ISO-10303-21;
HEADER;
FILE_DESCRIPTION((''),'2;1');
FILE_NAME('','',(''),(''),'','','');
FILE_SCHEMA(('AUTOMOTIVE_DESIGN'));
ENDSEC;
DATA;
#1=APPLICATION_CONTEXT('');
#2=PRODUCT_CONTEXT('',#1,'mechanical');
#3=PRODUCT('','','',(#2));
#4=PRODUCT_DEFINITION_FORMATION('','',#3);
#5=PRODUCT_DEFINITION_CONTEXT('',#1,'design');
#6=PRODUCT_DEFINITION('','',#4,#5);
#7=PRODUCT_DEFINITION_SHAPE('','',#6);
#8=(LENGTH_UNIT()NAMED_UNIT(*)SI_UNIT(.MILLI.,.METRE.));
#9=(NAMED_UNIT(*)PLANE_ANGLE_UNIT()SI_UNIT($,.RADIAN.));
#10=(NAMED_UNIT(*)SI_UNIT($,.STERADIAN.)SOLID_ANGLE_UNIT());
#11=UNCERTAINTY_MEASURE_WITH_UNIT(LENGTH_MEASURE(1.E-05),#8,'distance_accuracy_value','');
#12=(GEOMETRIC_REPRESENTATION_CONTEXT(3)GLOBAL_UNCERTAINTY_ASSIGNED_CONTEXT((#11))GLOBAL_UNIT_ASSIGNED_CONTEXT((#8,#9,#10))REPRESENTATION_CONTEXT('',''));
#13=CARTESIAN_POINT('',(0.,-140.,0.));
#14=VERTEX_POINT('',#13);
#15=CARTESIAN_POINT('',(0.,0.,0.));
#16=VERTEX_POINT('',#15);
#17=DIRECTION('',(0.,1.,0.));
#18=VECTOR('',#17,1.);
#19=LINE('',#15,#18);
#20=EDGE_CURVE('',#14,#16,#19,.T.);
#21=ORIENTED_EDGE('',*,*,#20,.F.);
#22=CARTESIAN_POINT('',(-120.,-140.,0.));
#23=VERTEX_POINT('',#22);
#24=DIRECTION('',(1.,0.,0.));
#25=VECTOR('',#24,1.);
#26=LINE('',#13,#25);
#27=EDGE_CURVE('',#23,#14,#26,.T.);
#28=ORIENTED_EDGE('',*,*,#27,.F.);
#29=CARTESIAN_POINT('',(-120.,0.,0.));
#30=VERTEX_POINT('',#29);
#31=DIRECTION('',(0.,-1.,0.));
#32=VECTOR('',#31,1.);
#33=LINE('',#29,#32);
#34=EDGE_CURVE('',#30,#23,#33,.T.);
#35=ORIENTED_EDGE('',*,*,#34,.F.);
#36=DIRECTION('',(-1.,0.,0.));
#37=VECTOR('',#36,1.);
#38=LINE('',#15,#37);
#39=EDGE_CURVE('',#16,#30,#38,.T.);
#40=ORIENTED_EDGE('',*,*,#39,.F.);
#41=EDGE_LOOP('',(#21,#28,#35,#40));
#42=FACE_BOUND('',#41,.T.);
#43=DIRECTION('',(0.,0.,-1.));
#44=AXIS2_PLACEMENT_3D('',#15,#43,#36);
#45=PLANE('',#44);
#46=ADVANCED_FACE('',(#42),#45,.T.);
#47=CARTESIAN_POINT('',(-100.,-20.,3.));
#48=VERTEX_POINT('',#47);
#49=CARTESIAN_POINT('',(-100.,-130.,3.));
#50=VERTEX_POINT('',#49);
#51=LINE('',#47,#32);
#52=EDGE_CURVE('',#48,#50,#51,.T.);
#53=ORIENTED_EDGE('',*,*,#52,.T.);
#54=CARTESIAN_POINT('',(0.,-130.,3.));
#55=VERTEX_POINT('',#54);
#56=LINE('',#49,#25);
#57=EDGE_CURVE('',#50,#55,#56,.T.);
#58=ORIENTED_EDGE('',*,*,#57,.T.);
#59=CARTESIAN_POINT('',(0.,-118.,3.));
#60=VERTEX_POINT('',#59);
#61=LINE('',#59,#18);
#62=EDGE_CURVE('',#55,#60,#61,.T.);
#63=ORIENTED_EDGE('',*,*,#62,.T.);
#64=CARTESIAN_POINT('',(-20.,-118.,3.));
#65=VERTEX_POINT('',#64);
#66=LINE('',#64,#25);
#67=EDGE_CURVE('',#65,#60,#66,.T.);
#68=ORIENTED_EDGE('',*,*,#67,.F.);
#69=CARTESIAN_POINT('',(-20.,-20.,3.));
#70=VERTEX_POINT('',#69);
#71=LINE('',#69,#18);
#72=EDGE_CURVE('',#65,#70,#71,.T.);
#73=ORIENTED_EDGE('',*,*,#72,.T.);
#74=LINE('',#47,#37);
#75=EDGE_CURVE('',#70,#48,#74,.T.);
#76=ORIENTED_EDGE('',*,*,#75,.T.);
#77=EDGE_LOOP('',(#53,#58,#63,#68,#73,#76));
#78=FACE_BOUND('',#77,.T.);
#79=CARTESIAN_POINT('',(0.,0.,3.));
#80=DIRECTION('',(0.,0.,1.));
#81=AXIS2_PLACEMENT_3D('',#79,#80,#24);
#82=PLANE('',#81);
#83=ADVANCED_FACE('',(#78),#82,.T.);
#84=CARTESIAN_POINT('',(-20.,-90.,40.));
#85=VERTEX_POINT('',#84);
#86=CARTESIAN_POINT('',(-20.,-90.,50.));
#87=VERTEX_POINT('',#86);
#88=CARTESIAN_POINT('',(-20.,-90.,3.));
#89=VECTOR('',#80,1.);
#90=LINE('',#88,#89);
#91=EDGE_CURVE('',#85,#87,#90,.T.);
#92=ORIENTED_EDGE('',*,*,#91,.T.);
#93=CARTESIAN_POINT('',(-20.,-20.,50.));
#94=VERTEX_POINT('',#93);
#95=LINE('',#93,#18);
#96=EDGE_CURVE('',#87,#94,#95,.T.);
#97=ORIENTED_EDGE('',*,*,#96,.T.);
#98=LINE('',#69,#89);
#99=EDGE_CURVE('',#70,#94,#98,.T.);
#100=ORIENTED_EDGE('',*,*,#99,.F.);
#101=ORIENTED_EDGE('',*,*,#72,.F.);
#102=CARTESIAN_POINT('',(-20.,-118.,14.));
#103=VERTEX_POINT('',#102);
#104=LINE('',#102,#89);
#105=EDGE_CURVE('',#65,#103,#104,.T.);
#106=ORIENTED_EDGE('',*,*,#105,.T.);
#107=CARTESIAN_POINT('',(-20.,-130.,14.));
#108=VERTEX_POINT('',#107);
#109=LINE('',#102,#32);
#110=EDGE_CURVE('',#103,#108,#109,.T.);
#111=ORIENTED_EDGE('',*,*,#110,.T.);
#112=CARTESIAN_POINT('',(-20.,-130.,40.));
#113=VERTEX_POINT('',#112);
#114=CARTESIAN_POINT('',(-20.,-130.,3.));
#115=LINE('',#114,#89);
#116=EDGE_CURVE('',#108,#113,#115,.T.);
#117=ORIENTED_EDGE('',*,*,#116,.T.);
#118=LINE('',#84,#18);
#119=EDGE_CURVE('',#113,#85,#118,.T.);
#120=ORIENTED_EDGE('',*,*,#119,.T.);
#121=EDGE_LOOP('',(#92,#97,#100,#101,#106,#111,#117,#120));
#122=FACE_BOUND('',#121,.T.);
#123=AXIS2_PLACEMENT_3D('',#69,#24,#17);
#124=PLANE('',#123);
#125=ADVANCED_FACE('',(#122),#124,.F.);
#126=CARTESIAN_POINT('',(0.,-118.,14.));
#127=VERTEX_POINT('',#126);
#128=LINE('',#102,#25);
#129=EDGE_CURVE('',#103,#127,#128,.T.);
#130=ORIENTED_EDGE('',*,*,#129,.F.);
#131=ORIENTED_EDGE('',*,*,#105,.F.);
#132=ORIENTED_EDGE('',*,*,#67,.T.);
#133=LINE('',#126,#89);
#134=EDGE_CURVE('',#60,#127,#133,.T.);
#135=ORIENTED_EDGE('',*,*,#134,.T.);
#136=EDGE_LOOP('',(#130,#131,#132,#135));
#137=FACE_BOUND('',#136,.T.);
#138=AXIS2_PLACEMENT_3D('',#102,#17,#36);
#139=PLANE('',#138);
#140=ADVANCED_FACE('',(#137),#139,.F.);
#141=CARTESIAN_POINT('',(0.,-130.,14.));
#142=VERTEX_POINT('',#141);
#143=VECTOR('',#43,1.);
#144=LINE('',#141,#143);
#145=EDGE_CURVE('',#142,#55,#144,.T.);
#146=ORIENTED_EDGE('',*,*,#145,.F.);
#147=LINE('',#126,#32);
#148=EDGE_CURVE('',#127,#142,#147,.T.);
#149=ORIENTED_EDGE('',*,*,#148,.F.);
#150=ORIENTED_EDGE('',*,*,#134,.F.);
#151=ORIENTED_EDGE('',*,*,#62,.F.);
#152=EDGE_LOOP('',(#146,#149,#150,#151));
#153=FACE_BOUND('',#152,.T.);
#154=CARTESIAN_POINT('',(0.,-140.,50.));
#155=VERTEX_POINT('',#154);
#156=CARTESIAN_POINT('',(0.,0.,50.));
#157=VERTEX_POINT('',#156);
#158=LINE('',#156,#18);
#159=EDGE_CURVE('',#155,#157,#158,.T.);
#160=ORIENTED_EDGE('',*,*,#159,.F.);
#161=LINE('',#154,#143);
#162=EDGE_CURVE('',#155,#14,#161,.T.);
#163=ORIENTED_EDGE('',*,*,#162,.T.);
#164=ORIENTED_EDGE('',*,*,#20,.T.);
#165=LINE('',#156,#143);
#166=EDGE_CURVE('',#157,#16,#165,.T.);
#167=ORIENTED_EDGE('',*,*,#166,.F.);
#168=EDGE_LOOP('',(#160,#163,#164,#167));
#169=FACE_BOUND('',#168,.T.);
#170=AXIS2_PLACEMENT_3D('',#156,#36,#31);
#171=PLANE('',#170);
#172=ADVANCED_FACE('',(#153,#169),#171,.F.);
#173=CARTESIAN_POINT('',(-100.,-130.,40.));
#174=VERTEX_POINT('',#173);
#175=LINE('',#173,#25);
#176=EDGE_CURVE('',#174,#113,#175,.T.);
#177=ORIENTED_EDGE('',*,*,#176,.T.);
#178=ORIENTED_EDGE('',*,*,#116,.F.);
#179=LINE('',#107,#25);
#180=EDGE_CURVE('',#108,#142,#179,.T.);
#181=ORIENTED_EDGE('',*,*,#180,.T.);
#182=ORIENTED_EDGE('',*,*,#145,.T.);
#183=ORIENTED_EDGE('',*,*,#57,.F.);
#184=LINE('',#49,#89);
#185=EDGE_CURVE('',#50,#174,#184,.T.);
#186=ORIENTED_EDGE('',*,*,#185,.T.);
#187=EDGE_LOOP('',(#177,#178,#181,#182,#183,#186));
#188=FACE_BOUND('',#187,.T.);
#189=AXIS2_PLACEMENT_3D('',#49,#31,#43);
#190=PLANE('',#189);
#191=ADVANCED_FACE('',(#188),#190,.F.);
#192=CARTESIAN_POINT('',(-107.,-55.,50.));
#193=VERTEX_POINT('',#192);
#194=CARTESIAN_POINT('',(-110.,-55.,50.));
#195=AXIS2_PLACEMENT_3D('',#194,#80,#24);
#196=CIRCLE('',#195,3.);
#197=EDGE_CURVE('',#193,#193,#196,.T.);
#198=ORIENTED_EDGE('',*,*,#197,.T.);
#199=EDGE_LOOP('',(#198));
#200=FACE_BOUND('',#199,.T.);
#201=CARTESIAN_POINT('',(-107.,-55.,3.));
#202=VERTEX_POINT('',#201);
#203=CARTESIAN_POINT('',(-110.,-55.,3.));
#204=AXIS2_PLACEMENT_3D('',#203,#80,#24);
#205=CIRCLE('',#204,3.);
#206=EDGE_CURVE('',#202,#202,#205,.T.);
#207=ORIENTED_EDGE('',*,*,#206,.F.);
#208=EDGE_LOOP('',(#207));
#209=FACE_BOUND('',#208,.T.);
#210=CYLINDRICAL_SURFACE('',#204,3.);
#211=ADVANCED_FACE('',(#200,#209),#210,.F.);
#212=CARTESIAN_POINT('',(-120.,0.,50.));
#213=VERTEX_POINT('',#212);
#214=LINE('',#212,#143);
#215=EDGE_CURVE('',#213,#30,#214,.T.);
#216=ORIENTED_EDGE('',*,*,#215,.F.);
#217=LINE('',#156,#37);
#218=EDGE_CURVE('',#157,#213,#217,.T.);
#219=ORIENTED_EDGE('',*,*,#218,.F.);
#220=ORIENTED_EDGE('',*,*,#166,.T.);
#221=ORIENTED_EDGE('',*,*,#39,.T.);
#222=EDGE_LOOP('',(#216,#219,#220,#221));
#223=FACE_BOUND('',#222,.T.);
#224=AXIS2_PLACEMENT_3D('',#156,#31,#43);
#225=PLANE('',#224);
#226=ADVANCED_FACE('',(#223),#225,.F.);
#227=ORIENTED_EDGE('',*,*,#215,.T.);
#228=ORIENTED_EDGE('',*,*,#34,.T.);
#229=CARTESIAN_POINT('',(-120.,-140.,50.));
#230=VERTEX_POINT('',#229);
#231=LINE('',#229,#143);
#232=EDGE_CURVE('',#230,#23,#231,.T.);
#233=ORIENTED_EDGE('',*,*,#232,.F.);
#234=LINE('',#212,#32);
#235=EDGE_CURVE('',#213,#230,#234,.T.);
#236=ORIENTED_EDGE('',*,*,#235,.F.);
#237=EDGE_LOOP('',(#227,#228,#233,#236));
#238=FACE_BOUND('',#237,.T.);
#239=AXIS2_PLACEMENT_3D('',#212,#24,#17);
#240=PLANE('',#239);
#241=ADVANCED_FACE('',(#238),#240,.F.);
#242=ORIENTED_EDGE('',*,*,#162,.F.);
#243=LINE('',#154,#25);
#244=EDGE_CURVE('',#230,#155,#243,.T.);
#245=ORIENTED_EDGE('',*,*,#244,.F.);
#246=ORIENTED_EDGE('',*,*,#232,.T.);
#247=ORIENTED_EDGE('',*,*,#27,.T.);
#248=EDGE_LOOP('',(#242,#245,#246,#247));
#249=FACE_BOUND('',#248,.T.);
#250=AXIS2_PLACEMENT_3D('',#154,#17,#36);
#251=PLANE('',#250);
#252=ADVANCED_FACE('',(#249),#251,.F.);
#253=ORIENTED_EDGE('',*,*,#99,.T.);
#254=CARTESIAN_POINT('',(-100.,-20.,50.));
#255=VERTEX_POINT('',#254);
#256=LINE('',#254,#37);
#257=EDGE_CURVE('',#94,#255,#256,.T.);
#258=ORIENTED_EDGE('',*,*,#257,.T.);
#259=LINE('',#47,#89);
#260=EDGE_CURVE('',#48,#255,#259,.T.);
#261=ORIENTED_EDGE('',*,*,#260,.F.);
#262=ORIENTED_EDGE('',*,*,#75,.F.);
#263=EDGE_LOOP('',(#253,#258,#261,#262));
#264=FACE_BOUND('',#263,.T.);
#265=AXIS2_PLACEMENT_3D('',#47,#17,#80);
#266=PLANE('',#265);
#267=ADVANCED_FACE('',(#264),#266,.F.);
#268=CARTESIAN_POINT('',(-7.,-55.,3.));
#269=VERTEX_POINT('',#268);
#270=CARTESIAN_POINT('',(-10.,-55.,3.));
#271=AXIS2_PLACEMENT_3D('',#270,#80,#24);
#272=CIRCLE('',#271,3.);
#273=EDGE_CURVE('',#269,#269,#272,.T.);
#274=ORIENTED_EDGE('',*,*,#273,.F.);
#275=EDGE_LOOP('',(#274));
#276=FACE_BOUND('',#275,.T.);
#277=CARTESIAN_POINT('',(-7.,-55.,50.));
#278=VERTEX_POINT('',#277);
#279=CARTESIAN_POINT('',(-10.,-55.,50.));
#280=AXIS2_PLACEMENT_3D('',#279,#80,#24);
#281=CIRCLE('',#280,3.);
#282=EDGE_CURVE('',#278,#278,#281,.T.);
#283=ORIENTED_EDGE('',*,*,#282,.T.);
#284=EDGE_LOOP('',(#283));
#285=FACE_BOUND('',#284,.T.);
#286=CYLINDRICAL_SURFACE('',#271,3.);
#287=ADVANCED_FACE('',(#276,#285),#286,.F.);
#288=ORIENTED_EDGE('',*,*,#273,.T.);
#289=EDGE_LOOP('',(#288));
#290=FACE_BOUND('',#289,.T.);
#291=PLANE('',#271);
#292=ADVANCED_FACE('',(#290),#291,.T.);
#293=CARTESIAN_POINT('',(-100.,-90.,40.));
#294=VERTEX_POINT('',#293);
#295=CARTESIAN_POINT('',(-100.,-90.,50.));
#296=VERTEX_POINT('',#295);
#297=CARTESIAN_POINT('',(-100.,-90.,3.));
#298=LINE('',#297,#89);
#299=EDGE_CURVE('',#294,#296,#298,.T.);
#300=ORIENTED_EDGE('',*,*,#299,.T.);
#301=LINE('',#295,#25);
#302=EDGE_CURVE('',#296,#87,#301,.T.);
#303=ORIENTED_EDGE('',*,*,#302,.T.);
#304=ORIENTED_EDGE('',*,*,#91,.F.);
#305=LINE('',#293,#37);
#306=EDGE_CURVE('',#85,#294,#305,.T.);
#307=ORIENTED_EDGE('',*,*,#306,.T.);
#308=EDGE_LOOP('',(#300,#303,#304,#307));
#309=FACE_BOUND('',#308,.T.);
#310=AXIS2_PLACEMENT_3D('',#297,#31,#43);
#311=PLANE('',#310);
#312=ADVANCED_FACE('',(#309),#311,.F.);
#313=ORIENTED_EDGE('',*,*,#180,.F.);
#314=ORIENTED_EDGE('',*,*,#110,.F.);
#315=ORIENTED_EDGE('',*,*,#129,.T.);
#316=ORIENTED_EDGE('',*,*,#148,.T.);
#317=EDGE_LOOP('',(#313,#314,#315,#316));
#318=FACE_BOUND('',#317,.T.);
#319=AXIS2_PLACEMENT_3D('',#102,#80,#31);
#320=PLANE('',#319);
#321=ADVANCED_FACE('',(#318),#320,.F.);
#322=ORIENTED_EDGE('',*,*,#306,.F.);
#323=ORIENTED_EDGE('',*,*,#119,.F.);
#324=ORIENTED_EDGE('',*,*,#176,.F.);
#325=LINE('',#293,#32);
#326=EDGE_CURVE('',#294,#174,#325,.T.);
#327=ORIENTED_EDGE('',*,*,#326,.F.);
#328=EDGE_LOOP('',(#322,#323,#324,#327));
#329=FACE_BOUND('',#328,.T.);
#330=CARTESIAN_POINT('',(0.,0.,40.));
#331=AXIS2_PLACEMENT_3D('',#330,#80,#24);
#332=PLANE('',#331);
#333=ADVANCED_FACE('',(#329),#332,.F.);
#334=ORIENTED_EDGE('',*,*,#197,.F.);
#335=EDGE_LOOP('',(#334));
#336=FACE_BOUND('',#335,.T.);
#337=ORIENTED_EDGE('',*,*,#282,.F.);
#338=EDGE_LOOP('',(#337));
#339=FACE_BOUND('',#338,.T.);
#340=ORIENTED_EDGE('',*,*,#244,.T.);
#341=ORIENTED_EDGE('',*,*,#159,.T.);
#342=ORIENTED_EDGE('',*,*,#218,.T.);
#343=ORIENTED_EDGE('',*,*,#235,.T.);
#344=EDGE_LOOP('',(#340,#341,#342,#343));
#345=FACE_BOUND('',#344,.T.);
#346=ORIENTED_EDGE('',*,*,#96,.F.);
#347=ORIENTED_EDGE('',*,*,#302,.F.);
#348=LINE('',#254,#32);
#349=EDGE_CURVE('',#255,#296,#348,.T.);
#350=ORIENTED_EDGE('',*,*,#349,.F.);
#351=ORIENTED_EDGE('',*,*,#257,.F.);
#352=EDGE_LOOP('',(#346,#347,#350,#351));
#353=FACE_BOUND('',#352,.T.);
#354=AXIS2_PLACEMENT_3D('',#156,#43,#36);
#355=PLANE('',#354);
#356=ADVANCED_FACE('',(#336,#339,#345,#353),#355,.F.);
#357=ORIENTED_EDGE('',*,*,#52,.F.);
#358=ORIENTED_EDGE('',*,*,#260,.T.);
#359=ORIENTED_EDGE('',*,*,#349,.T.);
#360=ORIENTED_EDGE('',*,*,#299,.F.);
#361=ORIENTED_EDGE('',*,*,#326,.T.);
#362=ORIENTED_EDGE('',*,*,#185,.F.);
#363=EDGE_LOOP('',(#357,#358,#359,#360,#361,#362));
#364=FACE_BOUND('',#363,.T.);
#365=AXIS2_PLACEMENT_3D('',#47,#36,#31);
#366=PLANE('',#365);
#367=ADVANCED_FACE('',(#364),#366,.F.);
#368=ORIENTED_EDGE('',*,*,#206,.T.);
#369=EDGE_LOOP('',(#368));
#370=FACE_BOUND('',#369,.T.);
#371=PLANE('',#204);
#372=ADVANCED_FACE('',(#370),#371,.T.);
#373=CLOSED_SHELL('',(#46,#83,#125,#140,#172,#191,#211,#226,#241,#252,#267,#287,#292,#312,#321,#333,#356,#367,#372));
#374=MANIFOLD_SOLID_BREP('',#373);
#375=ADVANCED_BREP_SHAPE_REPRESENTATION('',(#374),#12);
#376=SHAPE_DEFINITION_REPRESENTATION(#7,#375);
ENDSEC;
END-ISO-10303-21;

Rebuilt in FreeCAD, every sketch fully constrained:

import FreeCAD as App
import Part
import Sketcher

V = App.Vector


def add_polygon(sketch, points):
    """Adds a closed chain of lines whose ends are joined by coincident constraints."""
    first, n = sketch.GeometryCount, len(points)
    for a, b in zip(points, points[1:] + points[:1]):
        sketch.addGeometry(Part.LineSegment(App.Vector(*a, 0), App.Vector(*b, 0)), False)
    for i in range(n):
        sketch.addConstraint(Sketcher.Constraint("Coincident", first + i, 2, first + (i + 1) % n, 1))

doc = App.newDocument("Part")
body = doc.addObject("PartDesign::Body", "Body")

sketch1 = doc.addObject("Sketcher::SketchObject", "Sketch")
body.addObject(sketch1)
sketch1.AttachmentSupport = (doc.XY_Plane, [""])
sketch1.MapMode = "FlatFace"
add_polygon(sketch1, [(-120, 0), (-120, -140), (0, -140), (0, 0)])
sketch1.addConstraint([
    Sketcher.Constraint("Vertical", 0),
    Sketcher.Constraint("Horizontal", 1),
    Sketcher.Constraint("Vertical", 2),
    Sketcher.Constraint("Horizontal", 3),
    Sketcher.Constraint("Coincident", 2, 2, -1, 1),
    Sketcher.Constraint("DistanceX", 1, 1, 1, 2, 120.0),
    Sketcher.Constraint("DistanceY", 0, 2, 0, 1, 140.0),
])
pad1 = doc.addObject("PartDesign::Pad", "Pad")
body.addObject(pad1)
pad1.Profile = sketch1
pad1.Length = 50

sketch2 = doc.addObject("Sketcher::SketchObject", "Sketch001")
body.addObject(sketch2)
sketch2.AttachmentSupport = (doc.XY_Plane, [""])
sketch2.MapMode = "FlatFace"
sketch2.AttachmentOffset = App.Placement(V(0, 0, 50), App.Rotation())
sketch2.addGeometry(Part.Circle(V(-110, -55, 0), V(0, 0, 1), 3), False)
sketch2.addGeometry(Part.Circle(V(-10, -55, 0), V(0, 0, 1), 3), False)
add_polygon(sketch2, [(-100, -20), (-100, -90), (-20, -90), (-20, -20)])
sketch2.addConstraint([
    Sketcher.Constraint("Vertical", 2),
    Sketcher.Constraint("Horizontal", 3),
    Sketcher.Constraint("Vertical", 4),
    Sketcher.Constraint("Horizontal", 5),
    Sketcher.Constraint("Equal", 0, 1),
    Sketcher.Constraint("Horizontal", 0, 3, 1, 3),
    Sketcher.Constraint("Diameter", 0, 6.0),
    Sketcher.Constraint("DistanceX", 3, 1, 3, 2, 80.0),
    Sketcher.Constraint("DistanceY", 2, 2, 2, 1, 70.0),
    Sketcher.Constraint("DistanceX", 0, 3, -1, 1, 110.0),
    Sketcher.Constraint("DistanceY", 0, 3, -1, 1, 55.0),
    Sketcher.Constraint("DistanceX", 1, 3, -1, 1, 10.0),
    Sketcher.Constraint("DistanceX", 2, 2, -1, 1, 100.0),
    Sketcher.Constraint("DistanceY", 2, 2, -1, 1, 90.0),
])
pocket1 = doc.addObject("PartDesign::Pocket", "Pocket")
body.addObject(pocket1)
pocket1.Profile = sketch2
pocket1.Length = 47

sketch3 = doc.addObject("Sketcher::SketchObject", "Sketch002")
body.addObject(sketch3)
sketch3.AttachmentSupport = (doc.XY_Plane, [""])
sketch3.MapMode = "FlatFace"
sketch3.AttachmentOffset = App.Placement(V(0, 0, 40), App.Rotation())
add_polygon(sketch3, [(-100, -90), (-100, -130), (-20, -130), (-20, -90)])
sketch3.addConstraint([
    Sketcher.Constraint("Vertical", 0),
    Sketcher.Constraint("Horizontal", 1),
    Sketcher.Constraint("Vertical", 2),
    Sketcher.Constraint("Horizontal", 3),
    Sketcher.Constraint("DistanceX", 1, 1, 1, 2, 80.0),
    Sketcher.Constraint("DistanceY", 0, 2, 0, 1, 40.0),
    Sketcher.Constraint("DistanceX", 0, 2, -1, 1, 100.0),
    Sketcher.Constraint("DistanceY", 0, 2, -1, 1, 130.0),
])
pocket2 = doc.addObject("PartDesign::Pocket", "Pocket001")
body.addObject(pocket2)
pocket2.Profile = sketch3
pocket2.Length = 37

sketch4 = doc.addObject("Sketcher::SketchObject", "Sketch003")
body.addObject(sketch4)
sketch4.AttachmentSupport = (doc.YZ_Plane, [""])
sketch4.MapMode = "FlatFace"
add_polygon(sketch4, [(-118, 14), (-130, 14), (-130, 3), (-118, 3)])
sketch4.addConstraint([
    Sketcher.Constraint("Horizontal", 0),
    Sketcher.Constraint("Vertical", 1),
    Sketcher.Constraint("Horizontal", 2),
    Sketcher.Constraint("Vertical", 3),
    Sketcher.Constraint("DistanceX", 0, 2, 0, 1, 12.0),
    Sketcher.Constraint("DistanceY", 1, 2, 1, 1, 11.0),
    Sketcher.Constraint("DistanceX", 0, 2, -1, 1, 130.0),
    Sketcher.Constraint("DistanceY", -1, 1, 0, 2, 14.0),
])
pocket3 = doc.addObject("PartDesign::Pocket", "Pocket002")
body.addObject(pocket3)
pocket3.Profile = sketch4
pocket3.Length = 20

doc.recompute()
